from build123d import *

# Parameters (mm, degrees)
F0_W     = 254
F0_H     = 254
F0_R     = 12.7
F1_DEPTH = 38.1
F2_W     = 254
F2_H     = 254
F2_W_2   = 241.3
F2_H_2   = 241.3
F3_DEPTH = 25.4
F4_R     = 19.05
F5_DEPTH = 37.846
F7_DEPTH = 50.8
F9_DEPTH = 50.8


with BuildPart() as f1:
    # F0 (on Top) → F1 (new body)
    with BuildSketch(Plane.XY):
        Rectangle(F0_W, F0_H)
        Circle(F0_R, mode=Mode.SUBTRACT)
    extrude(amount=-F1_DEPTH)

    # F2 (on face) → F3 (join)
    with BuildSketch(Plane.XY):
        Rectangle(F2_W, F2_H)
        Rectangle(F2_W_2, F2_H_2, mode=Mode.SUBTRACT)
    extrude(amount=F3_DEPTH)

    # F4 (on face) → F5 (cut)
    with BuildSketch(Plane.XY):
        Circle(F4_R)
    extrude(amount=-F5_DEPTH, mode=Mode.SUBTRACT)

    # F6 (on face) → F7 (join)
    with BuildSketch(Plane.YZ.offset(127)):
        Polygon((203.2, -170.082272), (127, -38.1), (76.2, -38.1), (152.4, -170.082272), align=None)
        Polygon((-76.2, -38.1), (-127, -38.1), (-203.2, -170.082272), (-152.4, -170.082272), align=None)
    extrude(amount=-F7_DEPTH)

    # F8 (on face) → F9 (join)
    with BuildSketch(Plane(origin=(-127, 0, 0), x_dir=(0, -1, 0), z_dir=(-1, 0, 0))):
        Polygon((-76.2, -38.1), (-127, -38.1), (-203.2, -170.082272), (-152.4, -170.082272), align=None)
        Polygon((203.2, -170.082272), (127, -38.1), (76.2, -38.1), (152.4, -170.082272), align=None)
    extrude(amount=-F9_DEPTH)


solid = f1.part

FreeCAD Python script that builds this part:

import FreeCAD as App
import Part
import Sketcher
Q = App.Units.Quantity


def add_polygon(sketch, points):
    """Adds a closed chain of lines whose ends are joined by coincident constraints."""
    first, n = sketch.GeometryCount, len(points)
    for a, b in zip(points, points[1:] + points[:1]):
        sketch.addGeometry(Part.LineSegment(App.Vector(*a, 0), App.Vector(*b, 0)), False)
    for i in range(n):
        sketch.addConstraint(Sketcher.Constraint("Coincident", first + i, 2, first + (i + 1) % n, 1))

doc = App.newDocument("Part")
body = doc.addObject("PartDesign::Body", "Body")

# Sketch on XY plane
sketch1 = body.newObject("Sketcher::SketchObject", "Sketch")
sketch1.AttachmentSupport = (doc.getObject("XY_Plane"), [""])
sketch1.MapMode = "FlatFace"
add_polygon(sketch1, [(-127, 127), (-127, -127), (127, -127), (127, 127)])  # lines 0-3
sketch1.addGeometry(Part.Circle(App.Vector(0, 0, 0), App.Vector(0, 0, 1), 13), False)  # 4
sketch1.addConstraint(Sketcher.Constraint("Vertical", 0))
sketch1.addConstraint(Sketcher.Constraint("Horizontal", 1))
sketch1.addConstraint(Sketcher.Constraint("Vertical", 2))
sketch1.addConstraint(Sketcher.Constraint("Horizontal", 3))
sketch1.addConstraint(Sketcher.Constraint("Coincident", 4, 3, -1, 1))
sketch1.addConstraint(Sketcher.Constraint("Symmetric", 0, 2, 2, 2, -1, 1))
sketch1.addConstraint(Sketcher.Constraint("Equal", 3, 0))
sketch1.addConstraint(Sketcher.Constraint("Diameter", 4, Q("1 in")))
sketch1.addConstraint(Sketcher.Constraint("DistanceX", 1, 1, 1, 2, Q("10 in")))
pad1 = body.newObject("PartDesign::Pad", "Pad")
pad1.Profile = sketch1
pad1.Length = Q("1.5 in")
pad1.Reversed = True

# Sketch on XY plane
sketch2 = body.newObject("Sketcher::SketchObject", "Sketch001")
sketch2.AttachmentSupport = (doc.getObject("XY_Plane"), [""])
sketch2.MapMode = "FlatFace"
add_polygon(sketch2, [(-127, 127), (-127, -127), (127, -127), (127, 127)])  # lines 0-3
add_polygon(sketch2, [(121, -121), (-121, -121), (-121, 121), (121, 121)])  # lines 4-7
sketch2.addConstraint(Sketcher.Constraint("Vertical", 0))
sketch2.addConstraint(Sketcher.Constraint("Horizontal", 1))
sketch2.addConstraint(Sketcher.Constraint("Vertical", 2))
sketch2.addConstraint(Sketcher.Constraint("Horizontal", 3))
sketch2.addConstraint(Sketcher.Constraint("Horizontal", 4))
sketch2.addConstraint(Sketcher.Constraint("Vertical", 5))
sketch2.addConstraint(Sketcher.Constraint("Horizontal", 6))
sketch2.addConstraint(Sketcher.Constraint("Vertical", 7))
sketch2.addConstraint(Sketcher.Constraint("Symmetric", 0, 2, 2, 2, -1, 1))
sketch2.addConstraint(Sketcher.Constraint("Symmetric", 4, 2, 6, 2, -1, 1))
sketch2.addConstraint(Sketcher.Constraint("Equal", 3, 0))
sketch2.addConstraint(Sketcher.Constraint("Equal", 6, 5))
sketch2.addConstraint(Sketcher.Constraint("DistanceX", 1, 1, 1, 2, Q("10 in")))
sketch2.addConstraint(Sketcher.Constraint("DistanceX", 4, 2, 4, 1, Q("9.5 in")))
pad2 = body.newObject("PartDesign::Pad", "Pad001")
pad2.Profile = sketch2
pad2.Length = Q("1 in")

# Sketch on XY plane
sketch3 = body.newObject("Sketcher::SketchObject", "Sketch002")
sketch3.AttachmentSupport = (doc.getObject("XY_Plane"), [""])
sketch3.MapMode = "FlatFace"
sketch3.addGeometry(Part.Circle(App.Vector(0, 0, 0), App.Vector(0, 0, 1), 19), False)
sketch3.addConstraint(Sketcher.Constraint("Coincident", 0, 3, -1, 1))
sketch3.addConstraint(Sketcher.Constraint("Diameter", 0, Q("1.5 in")))
pocket1 = body.newObject("PartDesign::Pocket", "Pocket")
pocket1.Profile = sketch3
pocket1.Length = Q("1.49 in")

# Sketch on YZ plane
sketch4 = body.newObject("Sketcher::SketchObject", "Sketch003")
sketch4.AttachmentSupport = (doc.getObject("YZ_Plane"), [""])
sketch4.MapMode = "FlatFace"
sketch4.AttachmentOffset = App.Placement(App.Vector(0, 0, 5 * 25.4), App.Rotation())
add_polygon(sketch4, [(203, -170), (127, -38), (76, -38), (152, -170)])  # lines 0-3
add_polygon(sketch4, [(-76, -38), (-127, -38), (-203, -170), (-152, -170)])  # lines 4-7
sketch4.addConstraint(Sketcher.Constraint("Horizontal", 1))
sketch4.addConstraint(Sketcher.Constraint("Horizontal", 3))
sketch4.addConstraint(Sketcher.Constraint("Horizontal", 4))
sketch4.addConstraint(Sketcher.Constraint("Horizontal", 6))
sketch4.addConstraint(Sketcher.Constraint("Symmetric", 0, 2, 4, 2, -2))
sketch4.addConstraint(Sketcher.Constraint("Symmetric", 3, 2, 5, 2, -2))
sketch4.addConstraint(Sketcher.Constraint("Parallel", 0, 2))
sketch4.addConstraint(Sketcher.Constraint("Parallel", 5, 7))
sketch4.addConstraint(Sketcher.Constraint("Equal", 3, 4))
sketch4.addConstraint(Sketcher.Constraint("DistanceX", 1, 2, 1, 1, Q("2 in")))
sketch4.addConstraint(Sketcher.Constraint("Distance", 0, Q("6 in")))
sketch4.addConstraint(Sketcher.Constraint("DistanceX", -1, 1, 0, 2, Q("5 in")))
sketch4.addConstraint(Sketcher.Constraint("DistanceX", -1, 1, 2, 2, Q("6 in")))
sketch4.addConstraint(Sketcher.Constraint("DistanceY", 0, 2, -1, 1, Q("1.5 in")))
pad3 = body.newObject("PartDesign::Pad", "Pad002")
pad3.Profile = sketch4
pad3.Length = Q("2 in")
pad3.Reversed = True

# Sketch on YZ plane
sketch5 = body.newObject("Sketcher::SketchObject", "Sketch004")
sketch5.AttachmentSupport = (doc.getObject("YZ_Plane"), [""])
sketch5.MapMode = "FlatFace"
sketch5.AttachmentOffset = App.Placement(App.Vector(0, 0, -5 * 25.4), App.Rotation())
add_polygon(sketch5, [(76, -38), (127, -38), (203, -170), (152, -170)])  # lines 0-3
add_polygon(sketch5, [(-203, -170), (-127, -38), (-76, -38), (-152, -170)])  # lines 4-7
sketch5.addConstraint(Sketcher.Constraint("Horizontal", 0))
sketch5.addConstraint(Sketcher.Constraint("Horizontal", 2))
sketch5.addConstraint(Sketcher.Constraint("Horizontal", 5))
sketch5.addConstraint(Sketcher.Constraint("Horizontal", 7))
sketch5.addConstraint(Sketcher.Constraint("Symmetric", 0, 2, 4, 2, -2))
sketch5.addConstraint(Sketcher.Constraint("Symmetric", 2, 2, 6, 2, -2))
sketch5.addConstraint(Sketcher.Constraint("Parallel", 1, 3))
sketch5.addConstraint(Sketcher.Constraint("Parallel", 4, 6))
sketch5.addConstraint(Sketcher.Constraint("Equal", 2, 5))
sketch5.addConstraint(Sketcher.Constraint("DistanceX", 0, 1, 0, 2, Q("2 in")))
sketch5.addConstraint(Sketcher.Constraint("Distance", 1, Q("6 in")))
sketch5.addConstraint(Sketcher.Constraint("DistanceX", -1, 1, 0, 2, Q("5 in")))
sketch5.addConstraint(Sketcher.Constraint("DistanceX", -1, 1, 1, 2, Q("8 in")))
sketch5.addConstraint(Sketcher.Constraint("DistanceY", 0, 2, -1, 1, Q("1.5 in")))
pad4 = body.newObject("PartDesign::Pad", "Pad003")
pad4.Profile = sketch5
pad4.Length = Q("2 in")

doc.recompute()
